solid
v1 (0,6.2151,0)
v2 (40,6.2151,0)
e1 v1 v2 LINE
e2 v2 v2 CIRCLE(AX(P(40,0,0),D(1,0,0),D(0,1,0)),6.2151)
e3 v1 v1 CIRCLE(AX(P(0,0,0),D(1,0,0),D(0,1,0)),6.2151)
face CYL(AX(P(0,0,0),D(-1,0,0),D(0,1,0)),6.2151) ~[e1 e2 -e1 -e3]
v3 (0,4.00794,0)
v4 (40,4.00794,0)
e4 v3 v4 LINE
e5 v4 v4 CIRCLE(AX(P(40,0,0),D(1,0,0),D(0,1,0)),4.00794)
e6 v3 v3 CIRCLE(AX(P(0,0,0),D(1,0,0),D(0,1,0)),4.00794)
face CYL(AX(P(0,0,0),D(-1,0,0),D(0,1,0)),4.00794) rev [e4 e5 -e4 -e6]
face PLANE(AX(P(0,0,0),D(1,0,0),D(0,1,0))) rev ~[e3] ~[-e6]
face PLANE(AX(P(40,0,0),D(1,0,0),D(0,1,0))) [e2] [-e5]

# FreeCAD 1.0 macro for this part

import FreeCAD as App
import Part
import Sketcher

doc = App.newDocument("Part")
params = doc.addObject("Spreadsheet::Sheet", "Params")
for row, (alias, value) in enumerate([
    ("pad1_length", "40 mm"),
], start=1):
    params.set(f"A{row}", alias)
    params.set(f"B{row}", "=" + value)
    params.setAlias(f"B{row}", alias)

body = doc.addObject("PartDesign::Body", "Body")

sketch1 = body.newObject("Sketcher::SketchObject", "Sketch")
sketch1.AttachmentSupport = (doc.getObject("YZ_Plane"), [""])
sketch1.MapMode = "FlatFace"
sketch1.addGeometry([
    Part.Circle(App.Vector(0, 0, 0), App.Vector(0, 0, 1), 6.2),
    Part.Circle(App.Vector(0, 0, 0), App.Vector(0, 0, 1), 4),
], False)
sketch1.addConstraint([
    Sketcher.Constraint("Coincident", 0, 3, -1, 1),
    Sketcher.Constraint("Coincident", 1, 3, -1, 1),
    Sketcher.Constraint("Diameter", 0, 12.4302),
    Sketcher.Constraint("Diameter", 1, 8.01588),
])
pad1 = body.newObject("PartDesign::Pad", "Pad")
pad1.Profile = sketch1
pad1.setExpression("Length", "Params.pad1_length")

doc.recompute()
